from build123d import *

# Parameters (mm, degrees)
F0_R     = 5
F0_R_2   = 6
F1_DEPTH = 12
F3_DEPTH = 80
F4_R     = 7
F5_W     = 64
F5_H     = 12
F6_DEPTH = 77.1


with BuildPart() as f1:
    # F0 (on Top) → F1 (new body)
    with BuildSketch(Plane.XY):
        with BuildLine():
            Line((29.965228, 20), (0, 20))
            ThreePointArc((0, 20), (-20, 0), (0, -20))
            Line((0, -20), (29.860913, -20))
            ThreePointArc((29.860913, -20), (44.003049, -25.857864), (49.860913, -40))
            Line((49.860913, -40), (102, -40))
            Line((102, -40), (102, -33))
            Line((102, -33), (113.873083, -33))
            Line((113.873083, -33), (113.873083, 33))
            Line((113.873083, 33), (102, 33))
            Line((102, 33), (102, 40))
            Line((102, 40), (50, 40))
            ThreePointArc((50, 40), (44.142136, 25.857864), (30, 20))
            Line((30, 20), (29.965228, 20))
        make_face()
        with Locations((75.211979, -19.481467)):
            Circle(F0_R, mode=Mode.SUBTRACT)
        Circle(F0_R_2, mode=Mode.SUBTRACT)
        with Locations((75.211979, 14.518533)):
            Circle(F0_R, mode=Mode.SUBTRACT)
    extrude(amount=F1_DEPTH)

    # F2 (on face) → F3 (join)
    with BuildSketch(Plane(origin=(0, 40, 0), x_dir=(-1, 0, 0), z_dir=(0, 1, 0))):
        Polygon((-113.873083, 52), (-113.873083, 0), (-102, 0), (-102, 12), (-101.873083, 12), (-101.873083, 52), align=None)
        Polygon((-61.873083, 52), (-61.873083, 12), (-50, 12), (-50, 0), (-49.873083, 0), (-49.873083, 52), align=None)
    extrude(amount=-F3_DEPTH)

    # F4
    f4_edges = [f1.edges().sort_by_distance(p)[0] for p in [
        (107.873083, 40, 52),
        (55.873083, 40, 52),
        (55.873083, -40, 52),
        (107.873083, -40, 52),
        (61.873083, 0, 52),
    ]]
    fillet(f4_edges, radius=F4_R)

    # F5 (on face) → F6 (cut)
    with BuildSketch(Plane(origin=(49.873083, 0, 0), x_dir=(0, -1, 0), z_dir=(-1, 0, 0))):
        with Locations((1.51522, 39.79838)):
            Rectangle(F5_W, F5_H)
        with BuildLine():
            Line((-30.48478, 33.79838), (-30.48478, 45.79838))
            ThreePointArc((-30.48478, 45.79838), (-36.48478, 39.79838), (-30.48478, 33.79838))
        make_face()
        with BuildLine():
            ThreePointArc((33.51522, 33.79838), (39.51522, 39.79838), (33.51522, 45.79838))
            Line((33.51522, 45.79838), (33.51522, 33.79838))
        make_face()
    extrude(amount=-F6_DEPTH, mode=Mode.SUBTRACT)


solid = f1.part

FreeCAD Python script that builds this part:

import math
import FreeCAD as App
import Part
import Sketcher
from FreeCAD import Vector
Q = App.Units.Quantity


def edges_at(feature, points):
    """Names of the edges that pass closest to the given points."""
    edges = feature.Shape.Edges
    near = lambda p: min(range(len(edges)), key=lambda i: edges[i].distToShape(Part.Vertex(*p))[0])
    return sorted({f"Edge{near(p) + 1}" for p in points})

doc = App.newDocument("Part")
body = doc.addObject("PartDesign::Body", "Body")

# Sketch on XY plane
sketch1 = body.newObject("Sketcher::SketchObject", "Sketch")
sketch1.AttachmentSupport = (doc.getObject("XY_Plane"), [""])
sketch1.MapMode = "FlatFace"
sketch1.addGeometry([
    Part.ArcOfCircle(Part.Circle(Vector(0, 0, 0), Vector(0, 0, 1), 20), math.radians(90), math.radians(270)),  # 0
    Part.LineSegment(Vector(0, -20, 0), Vector(30, -20, 0)),  # 1
    Part.ArcOfCircle(Part.Circle(Vector(30, -40, 0), Vector(0, 0, 1), 20), math.radians(0), math.radians(90)),  # 2
    Part.LineSegment(Vector(50, -40, 0), Vector(102, -40, 0)),  # 3
    Part.LineSegment(Vector(102, -40, 0), Vector(102, -33, 0)),  # 4
    Part.LineSegment(Vector(102, -33, 0), Vector(114, -33, 0)),  # 5
    Part.LineSegment(Vector(114, -33, 0), Vector(114, 33, 0)),  # 6
    Part.LineSegment(Vector(114, 33, 0), Vector(102, 33, 0)),  # 7
    Part.LineSegment(Vector(102, 33, 0), Vector(102, 40, 0)),  # 8
    Part.LineSegment(Vector(102, 40, 0), Vector(50, 40, 0)),  # 9
    Part.ArcOfCircle(Part.Circle(Vector(30, 40, 0), Vector(0, 0, 1), 20), math.radians(-90), math.radians(0)),  # 10
    Part.LineSegment(Vector(30, 20, 0), Vector(0, 20, 0)),  # 11
    Part.Circle(Vector(75, -19, 0), Vector(0, 0, 1), 5),  # 12
    Part.Circle(Vector(0, 0, 0), Vector(0, 0, 1), 6),  # 13
    Part.Circle(Vector(75, 15, 0), Vector(0, 0, 1), 5),  # 14
], False)
sketch1.addConstraint([
    Sketcher.Constraint("Tangent", 0, 2, 1, 1),
    Sketcher.Constraint("Tangent", 1, 2, 2, 2),
    Sketcher.Constraint("Coincident", 2, 1, 3, 1),
    Sketcher.Constraint("Coincident", 3, 2, 4, 1),
    Sketcher.Constraint("Coincident", 4, 2, 5, 1),
    Sketcher.Constraint("Coincident", 5, 2, 6, 1),
    Sketcher.Constraint("Coincident", 6, 2, 7, 1),
    Sketcher.Constraint("Coincident", 7, 2, 8, 1),
    Sketcher.Constraint("Coincident", 8, 2, 9, 1),
    Sketcher.Constraint("Coincident", 9, 2, 10, 2),
    Sketcher.Constraint("Tangent", 10, 1, 11, 1),
    Sketcher.Constraint("Tangent", 11, 2, 0, 1),
    Sketcher.Constraint("Horizontal", 1),
    Sketcher.Constraint("Horizontal", 3),
    Sketcher.Constraint("Vertical", 4),
    Sketcher.Constraint("Horizontal", 5),
    Sketcher.Constraint("Vertical", 6),
    Sketcher.Constraint("Horizontal", 7),
    Sketcher.Constraint("Vertical", 8),
    Sketcher.Constraint("Horizontal", 9),
    Sketcher.Constraint("Horizontal", 11),
    Sketcher.Constraint("Coincident", 0, 3, -1, 1),
    Sketcher.Constraint("Coincident", 13, 3, -1, 1),
    Sketcher.Constraint("Equal", 0, 2),
    Sketcher.Constraint("Equal", 2, 10),
    Sketcher.Constraint("Equal", 12, 14),
    Sketcher.Constraint("Symmetric", 4, 2, 7, 2, -1),
    Sketcher.Constraint("Horizontal", 10, 3, 8, 2),
    Sketcher.Constraint("Vertical", 12, 3, 14, 3),
    Sketcher.Constraint("Equal", 4, 8),
    Sketcher.Constraint("Diameter", 12, Q("10 mm")),
    Sketcher.Constraint("Diameter", 13, Q("12 mm")),
    Sketcher.Constraint("Radius", 0, Q("20 mm")),
    Sketcher.Constraint("DistanceX", 9, 2, 9, 1, Q("52 mm")),
    Sketcher.Constraint("DistanceX", 11, 2, 11, 1, Q("30 mm")),
    Sketcher.Constraint("DistanceY", 4, 1, 4, 2, Q("7 mm")),
    Sketcher.Constraint("DistanceY", 12, 3, 14, 3, Q("34 mm")),
    Sketcher.Constraint("DistanceX", 1, 1, 1, 2, Q("29.860913 mm")),
    Sketcher.Constraint("DistanceX", 5, 1, 5, 2, Q("11.873083 mm")),
    Sketcher.Constraint("DistanceX", -1, 1, 12, 3, Q("75.211979 mm")),
    Sketcher.Constraint("DistanceY", 2, 3, 12, 3, Q("20.518532 mm")),
])
pad1 = body.newObject("PartDesign::Pad", "Pad")
pad1.Profile = sketch1
pad1.Length = 12

# Sketch on XZ plane
sketch2 = body.newObject("Sketcher::SketchObject", "Sketch001")
sketch2.AttachmentSupport = (doc.getObject("XZ_Plane"), [""])
sketch2.MapMode = "FlatFace"
sketch2.AttachmentOffset = App.Placement(Vector(0, 0, -40), App.Rotation())
sketch2.addGeometry([
    Part.LineSegment(Vector(113.87, 52, 0), Vector(113.87, 0, 0)),  # 0
    Part.LineSegment(Vector(113.87, 0, 0), Vector(102, 0, 0)),  # 1
    Part.LineSegment(Vector(102, 0, 0), Vector(102, 12, 0)),  # 2
    Part.LineSegment(Vector(102, 12, 0), Vector(101.87, 12, 0)),  # 3
    Part.LineSegment(Vector(101.87, 12, 0), Vector(101.87, 52, 0)),  # 4
    Part.LineSegment(Vector(101.87, 52, 0), Vector(113.87, 52, 0)),  # 5
    Part.LineSegment(Vector(61.87, 52, 0), Vector(61.87, 12, 0)),  # 6
    Part.LineSegment(Vector(61.87, 12, 0), Vector(50, 12, 0)),  # 7
    Part.LineSegment(Vector(50, 12, 0), Vector(50, 0, 0)),  # 8
    Part.LineSegment(Vector(50, 0, 0), Vector(49.87, 0, 0)),  # 9
    Part.LineSegment(Vector(49.87, 0, 0), Vector(49.87, 52, 0)),  # 10
    Part.LineSegment(Vector(49.87, 52, 0), Vector(61.87, 52, 0)),  # 11
], False)
sketch2.addConstraint([
    Sketcher.Constraint("Coincident", 0, 2, 1, 1),
    Sketcher.Constraint("Coincident", 1, 2, 2, 1),
    Sketcher.Constraint("Coincident", 2, 2, 3, 1),
    Sketcher.Constraint("Coincident", 3, 2, 4, 1),
    Sketcher.Constraint("Coincident", 4, 2, 5, 1),
    Sketcher.Constraint("Coincident", 5, 2, 0, 1),
    Sketcher.Constraint("Coincident", 6, 2, 7, 1),
    Sketcher.Constraint("Coincident", 7, 2, 8, 1),
    Sketcher.Constraint("Coincident", 8, 2, 9, 1),
    Sketcher.Constraint("Coincident", 9, 2, 10, 1),
    Sketcher.Constraint("Coincident", 10, 2, 11, 1),
    Sketcher.Constraint("Coincident", 11, 2, 6, 1),
    Sketcher.Constraint("Vertical", 0),
    Sketcher.Constraint("Horizontal", 1),
    Sketcher.Constraint("Vertical", 2),
    Sketcher.Constraint("Horizontal", 3),
    Sketcher.Constraint("Vertical", 4),
    Sketcher.Constraint("Horizontal", 5),
    Sketcher.Constraint("Vertical", 6),
    Sketcher.Constraint("Horizontal", 7),
    Sketcher.Constraint("Vertical", 8),
    Sketcher.Constraint("Horizontal", 9),
    Sketcher.Constraint("Vertical", 10),
    Sketcher.Constraint("Horizontal", 11),
    Sketcher.Constraint("PointOnObject", 0, 2, -1),
    Sketcher.Constraint("PointOnObject", 8, 2, -1),
    Sketcher.Constraint("Horizontal", 3, 2, 6, 2),
    Sketcher.Constraint("Horizontal", 5, 2, 10, 2),
    Sketcher.Constraint("Equal", 1, 7),
    Sketcher.Constraint("Equal", 3, 9),
    Sketcher.Constraint("Equal", 11, 2),
    Sketcher.Constraint("DistanceX", 5, 1, 5, 2, Q("12 mm")),
    Sketcher.Constraint("DistanceY", 0, 2, 0, 1, Q("52 mm")),
    Sketcher.Constraint("DistanceX", -1, 1, 1, 2, Q("102 mm")),
    Sketcher.Constraint("DistanceX", -1, 1, 7, 2, Q("50 mm")),
    Sketcher.Constraint("DistanceX", 1, 2, 1, 1, Q("11.873083 mm")),
])
pad2 = body.newObject("PartDesign::Pad", "Pad001")
pad2.Profile = sketch2
pad2.Length = 80
doc.recompute()

fillet = body.newObject("PartDesign::Fillet", "Fillet")
fillet.Base = (pad2, edges_at(pad2, [
    (107.873, 40, 52),
    (55.873, 40, 52),
    (55.873, -40, 52),
    (107.873, -40, 52),
    (61.873, 0, 52),
]))
fillet.Radius = 7

# Sketch on YZ plane
sketch3 = body.newObject("Sketcher::SketchObject", "Sketch002")
sketch3.AttachmentSupport = (doc.getObject("YZ_Plane"), [""])
sketch3.MapMode = "FlatFace"
sketch3.AttachmentOffset = App.Placement(Vector(0, 0, 49.873083), App.Rotation())
sketch3.addGeometry([
    Part.LineSegment(Vector(30, 34, 0), Vector(-34, 34, 0)),
    Part.ArcOfCircle(Part.Circle(Vector(-34, 40, 0), Vector(0, 0, 1), 6), math.radians(90), math.radians(270)),
    Part.LineSegment(Vector(-34, 46, 0), Vector(30, 46, 0)),
    Part.ArcOfCircle(Part.Circle(Vector(30, 40, 0), Vector(0, 0, 1), 6), math.radians(-90), math.radians(90)),
], False)
sketch3.addConstraint([
    Sketcher.Constraint("Tangent", 0, 2, 1, 2),
    Sketcher.Constraint("Tangent", 1, 1, 2, 1),
    Sketcher.Constraint("Tangent", 2, 2, 3, 2),
    Sketcher.Constraint("Tangent", 3, 1, 0, 1),
    Sketcher.Constraint("Horizontal", 0),
    Sketcher.Constraint("Horizontal", 2),
    Sketcher.Constraint("Radius", 1, Q("6 mm")),
    Sketcher.Constraint("DistanceX", 0, 2, 0, 1, Q("64 mm")),
    Sketcher.Constraint("DistanceX", 1, 3, -1, 1, Q("33.51522 mm")),
    Sketcher.Constraint("DistanceY", -1, 1, 1, 3, Q("39.79838 mm")),
])
pocket1 = body.newObject("PartDesign::Pocket", "Pocket")
pocket1.Profile = sketch3
pocket1.Length = 77.1
pocket1.Reversed = True

doc.recompute()
